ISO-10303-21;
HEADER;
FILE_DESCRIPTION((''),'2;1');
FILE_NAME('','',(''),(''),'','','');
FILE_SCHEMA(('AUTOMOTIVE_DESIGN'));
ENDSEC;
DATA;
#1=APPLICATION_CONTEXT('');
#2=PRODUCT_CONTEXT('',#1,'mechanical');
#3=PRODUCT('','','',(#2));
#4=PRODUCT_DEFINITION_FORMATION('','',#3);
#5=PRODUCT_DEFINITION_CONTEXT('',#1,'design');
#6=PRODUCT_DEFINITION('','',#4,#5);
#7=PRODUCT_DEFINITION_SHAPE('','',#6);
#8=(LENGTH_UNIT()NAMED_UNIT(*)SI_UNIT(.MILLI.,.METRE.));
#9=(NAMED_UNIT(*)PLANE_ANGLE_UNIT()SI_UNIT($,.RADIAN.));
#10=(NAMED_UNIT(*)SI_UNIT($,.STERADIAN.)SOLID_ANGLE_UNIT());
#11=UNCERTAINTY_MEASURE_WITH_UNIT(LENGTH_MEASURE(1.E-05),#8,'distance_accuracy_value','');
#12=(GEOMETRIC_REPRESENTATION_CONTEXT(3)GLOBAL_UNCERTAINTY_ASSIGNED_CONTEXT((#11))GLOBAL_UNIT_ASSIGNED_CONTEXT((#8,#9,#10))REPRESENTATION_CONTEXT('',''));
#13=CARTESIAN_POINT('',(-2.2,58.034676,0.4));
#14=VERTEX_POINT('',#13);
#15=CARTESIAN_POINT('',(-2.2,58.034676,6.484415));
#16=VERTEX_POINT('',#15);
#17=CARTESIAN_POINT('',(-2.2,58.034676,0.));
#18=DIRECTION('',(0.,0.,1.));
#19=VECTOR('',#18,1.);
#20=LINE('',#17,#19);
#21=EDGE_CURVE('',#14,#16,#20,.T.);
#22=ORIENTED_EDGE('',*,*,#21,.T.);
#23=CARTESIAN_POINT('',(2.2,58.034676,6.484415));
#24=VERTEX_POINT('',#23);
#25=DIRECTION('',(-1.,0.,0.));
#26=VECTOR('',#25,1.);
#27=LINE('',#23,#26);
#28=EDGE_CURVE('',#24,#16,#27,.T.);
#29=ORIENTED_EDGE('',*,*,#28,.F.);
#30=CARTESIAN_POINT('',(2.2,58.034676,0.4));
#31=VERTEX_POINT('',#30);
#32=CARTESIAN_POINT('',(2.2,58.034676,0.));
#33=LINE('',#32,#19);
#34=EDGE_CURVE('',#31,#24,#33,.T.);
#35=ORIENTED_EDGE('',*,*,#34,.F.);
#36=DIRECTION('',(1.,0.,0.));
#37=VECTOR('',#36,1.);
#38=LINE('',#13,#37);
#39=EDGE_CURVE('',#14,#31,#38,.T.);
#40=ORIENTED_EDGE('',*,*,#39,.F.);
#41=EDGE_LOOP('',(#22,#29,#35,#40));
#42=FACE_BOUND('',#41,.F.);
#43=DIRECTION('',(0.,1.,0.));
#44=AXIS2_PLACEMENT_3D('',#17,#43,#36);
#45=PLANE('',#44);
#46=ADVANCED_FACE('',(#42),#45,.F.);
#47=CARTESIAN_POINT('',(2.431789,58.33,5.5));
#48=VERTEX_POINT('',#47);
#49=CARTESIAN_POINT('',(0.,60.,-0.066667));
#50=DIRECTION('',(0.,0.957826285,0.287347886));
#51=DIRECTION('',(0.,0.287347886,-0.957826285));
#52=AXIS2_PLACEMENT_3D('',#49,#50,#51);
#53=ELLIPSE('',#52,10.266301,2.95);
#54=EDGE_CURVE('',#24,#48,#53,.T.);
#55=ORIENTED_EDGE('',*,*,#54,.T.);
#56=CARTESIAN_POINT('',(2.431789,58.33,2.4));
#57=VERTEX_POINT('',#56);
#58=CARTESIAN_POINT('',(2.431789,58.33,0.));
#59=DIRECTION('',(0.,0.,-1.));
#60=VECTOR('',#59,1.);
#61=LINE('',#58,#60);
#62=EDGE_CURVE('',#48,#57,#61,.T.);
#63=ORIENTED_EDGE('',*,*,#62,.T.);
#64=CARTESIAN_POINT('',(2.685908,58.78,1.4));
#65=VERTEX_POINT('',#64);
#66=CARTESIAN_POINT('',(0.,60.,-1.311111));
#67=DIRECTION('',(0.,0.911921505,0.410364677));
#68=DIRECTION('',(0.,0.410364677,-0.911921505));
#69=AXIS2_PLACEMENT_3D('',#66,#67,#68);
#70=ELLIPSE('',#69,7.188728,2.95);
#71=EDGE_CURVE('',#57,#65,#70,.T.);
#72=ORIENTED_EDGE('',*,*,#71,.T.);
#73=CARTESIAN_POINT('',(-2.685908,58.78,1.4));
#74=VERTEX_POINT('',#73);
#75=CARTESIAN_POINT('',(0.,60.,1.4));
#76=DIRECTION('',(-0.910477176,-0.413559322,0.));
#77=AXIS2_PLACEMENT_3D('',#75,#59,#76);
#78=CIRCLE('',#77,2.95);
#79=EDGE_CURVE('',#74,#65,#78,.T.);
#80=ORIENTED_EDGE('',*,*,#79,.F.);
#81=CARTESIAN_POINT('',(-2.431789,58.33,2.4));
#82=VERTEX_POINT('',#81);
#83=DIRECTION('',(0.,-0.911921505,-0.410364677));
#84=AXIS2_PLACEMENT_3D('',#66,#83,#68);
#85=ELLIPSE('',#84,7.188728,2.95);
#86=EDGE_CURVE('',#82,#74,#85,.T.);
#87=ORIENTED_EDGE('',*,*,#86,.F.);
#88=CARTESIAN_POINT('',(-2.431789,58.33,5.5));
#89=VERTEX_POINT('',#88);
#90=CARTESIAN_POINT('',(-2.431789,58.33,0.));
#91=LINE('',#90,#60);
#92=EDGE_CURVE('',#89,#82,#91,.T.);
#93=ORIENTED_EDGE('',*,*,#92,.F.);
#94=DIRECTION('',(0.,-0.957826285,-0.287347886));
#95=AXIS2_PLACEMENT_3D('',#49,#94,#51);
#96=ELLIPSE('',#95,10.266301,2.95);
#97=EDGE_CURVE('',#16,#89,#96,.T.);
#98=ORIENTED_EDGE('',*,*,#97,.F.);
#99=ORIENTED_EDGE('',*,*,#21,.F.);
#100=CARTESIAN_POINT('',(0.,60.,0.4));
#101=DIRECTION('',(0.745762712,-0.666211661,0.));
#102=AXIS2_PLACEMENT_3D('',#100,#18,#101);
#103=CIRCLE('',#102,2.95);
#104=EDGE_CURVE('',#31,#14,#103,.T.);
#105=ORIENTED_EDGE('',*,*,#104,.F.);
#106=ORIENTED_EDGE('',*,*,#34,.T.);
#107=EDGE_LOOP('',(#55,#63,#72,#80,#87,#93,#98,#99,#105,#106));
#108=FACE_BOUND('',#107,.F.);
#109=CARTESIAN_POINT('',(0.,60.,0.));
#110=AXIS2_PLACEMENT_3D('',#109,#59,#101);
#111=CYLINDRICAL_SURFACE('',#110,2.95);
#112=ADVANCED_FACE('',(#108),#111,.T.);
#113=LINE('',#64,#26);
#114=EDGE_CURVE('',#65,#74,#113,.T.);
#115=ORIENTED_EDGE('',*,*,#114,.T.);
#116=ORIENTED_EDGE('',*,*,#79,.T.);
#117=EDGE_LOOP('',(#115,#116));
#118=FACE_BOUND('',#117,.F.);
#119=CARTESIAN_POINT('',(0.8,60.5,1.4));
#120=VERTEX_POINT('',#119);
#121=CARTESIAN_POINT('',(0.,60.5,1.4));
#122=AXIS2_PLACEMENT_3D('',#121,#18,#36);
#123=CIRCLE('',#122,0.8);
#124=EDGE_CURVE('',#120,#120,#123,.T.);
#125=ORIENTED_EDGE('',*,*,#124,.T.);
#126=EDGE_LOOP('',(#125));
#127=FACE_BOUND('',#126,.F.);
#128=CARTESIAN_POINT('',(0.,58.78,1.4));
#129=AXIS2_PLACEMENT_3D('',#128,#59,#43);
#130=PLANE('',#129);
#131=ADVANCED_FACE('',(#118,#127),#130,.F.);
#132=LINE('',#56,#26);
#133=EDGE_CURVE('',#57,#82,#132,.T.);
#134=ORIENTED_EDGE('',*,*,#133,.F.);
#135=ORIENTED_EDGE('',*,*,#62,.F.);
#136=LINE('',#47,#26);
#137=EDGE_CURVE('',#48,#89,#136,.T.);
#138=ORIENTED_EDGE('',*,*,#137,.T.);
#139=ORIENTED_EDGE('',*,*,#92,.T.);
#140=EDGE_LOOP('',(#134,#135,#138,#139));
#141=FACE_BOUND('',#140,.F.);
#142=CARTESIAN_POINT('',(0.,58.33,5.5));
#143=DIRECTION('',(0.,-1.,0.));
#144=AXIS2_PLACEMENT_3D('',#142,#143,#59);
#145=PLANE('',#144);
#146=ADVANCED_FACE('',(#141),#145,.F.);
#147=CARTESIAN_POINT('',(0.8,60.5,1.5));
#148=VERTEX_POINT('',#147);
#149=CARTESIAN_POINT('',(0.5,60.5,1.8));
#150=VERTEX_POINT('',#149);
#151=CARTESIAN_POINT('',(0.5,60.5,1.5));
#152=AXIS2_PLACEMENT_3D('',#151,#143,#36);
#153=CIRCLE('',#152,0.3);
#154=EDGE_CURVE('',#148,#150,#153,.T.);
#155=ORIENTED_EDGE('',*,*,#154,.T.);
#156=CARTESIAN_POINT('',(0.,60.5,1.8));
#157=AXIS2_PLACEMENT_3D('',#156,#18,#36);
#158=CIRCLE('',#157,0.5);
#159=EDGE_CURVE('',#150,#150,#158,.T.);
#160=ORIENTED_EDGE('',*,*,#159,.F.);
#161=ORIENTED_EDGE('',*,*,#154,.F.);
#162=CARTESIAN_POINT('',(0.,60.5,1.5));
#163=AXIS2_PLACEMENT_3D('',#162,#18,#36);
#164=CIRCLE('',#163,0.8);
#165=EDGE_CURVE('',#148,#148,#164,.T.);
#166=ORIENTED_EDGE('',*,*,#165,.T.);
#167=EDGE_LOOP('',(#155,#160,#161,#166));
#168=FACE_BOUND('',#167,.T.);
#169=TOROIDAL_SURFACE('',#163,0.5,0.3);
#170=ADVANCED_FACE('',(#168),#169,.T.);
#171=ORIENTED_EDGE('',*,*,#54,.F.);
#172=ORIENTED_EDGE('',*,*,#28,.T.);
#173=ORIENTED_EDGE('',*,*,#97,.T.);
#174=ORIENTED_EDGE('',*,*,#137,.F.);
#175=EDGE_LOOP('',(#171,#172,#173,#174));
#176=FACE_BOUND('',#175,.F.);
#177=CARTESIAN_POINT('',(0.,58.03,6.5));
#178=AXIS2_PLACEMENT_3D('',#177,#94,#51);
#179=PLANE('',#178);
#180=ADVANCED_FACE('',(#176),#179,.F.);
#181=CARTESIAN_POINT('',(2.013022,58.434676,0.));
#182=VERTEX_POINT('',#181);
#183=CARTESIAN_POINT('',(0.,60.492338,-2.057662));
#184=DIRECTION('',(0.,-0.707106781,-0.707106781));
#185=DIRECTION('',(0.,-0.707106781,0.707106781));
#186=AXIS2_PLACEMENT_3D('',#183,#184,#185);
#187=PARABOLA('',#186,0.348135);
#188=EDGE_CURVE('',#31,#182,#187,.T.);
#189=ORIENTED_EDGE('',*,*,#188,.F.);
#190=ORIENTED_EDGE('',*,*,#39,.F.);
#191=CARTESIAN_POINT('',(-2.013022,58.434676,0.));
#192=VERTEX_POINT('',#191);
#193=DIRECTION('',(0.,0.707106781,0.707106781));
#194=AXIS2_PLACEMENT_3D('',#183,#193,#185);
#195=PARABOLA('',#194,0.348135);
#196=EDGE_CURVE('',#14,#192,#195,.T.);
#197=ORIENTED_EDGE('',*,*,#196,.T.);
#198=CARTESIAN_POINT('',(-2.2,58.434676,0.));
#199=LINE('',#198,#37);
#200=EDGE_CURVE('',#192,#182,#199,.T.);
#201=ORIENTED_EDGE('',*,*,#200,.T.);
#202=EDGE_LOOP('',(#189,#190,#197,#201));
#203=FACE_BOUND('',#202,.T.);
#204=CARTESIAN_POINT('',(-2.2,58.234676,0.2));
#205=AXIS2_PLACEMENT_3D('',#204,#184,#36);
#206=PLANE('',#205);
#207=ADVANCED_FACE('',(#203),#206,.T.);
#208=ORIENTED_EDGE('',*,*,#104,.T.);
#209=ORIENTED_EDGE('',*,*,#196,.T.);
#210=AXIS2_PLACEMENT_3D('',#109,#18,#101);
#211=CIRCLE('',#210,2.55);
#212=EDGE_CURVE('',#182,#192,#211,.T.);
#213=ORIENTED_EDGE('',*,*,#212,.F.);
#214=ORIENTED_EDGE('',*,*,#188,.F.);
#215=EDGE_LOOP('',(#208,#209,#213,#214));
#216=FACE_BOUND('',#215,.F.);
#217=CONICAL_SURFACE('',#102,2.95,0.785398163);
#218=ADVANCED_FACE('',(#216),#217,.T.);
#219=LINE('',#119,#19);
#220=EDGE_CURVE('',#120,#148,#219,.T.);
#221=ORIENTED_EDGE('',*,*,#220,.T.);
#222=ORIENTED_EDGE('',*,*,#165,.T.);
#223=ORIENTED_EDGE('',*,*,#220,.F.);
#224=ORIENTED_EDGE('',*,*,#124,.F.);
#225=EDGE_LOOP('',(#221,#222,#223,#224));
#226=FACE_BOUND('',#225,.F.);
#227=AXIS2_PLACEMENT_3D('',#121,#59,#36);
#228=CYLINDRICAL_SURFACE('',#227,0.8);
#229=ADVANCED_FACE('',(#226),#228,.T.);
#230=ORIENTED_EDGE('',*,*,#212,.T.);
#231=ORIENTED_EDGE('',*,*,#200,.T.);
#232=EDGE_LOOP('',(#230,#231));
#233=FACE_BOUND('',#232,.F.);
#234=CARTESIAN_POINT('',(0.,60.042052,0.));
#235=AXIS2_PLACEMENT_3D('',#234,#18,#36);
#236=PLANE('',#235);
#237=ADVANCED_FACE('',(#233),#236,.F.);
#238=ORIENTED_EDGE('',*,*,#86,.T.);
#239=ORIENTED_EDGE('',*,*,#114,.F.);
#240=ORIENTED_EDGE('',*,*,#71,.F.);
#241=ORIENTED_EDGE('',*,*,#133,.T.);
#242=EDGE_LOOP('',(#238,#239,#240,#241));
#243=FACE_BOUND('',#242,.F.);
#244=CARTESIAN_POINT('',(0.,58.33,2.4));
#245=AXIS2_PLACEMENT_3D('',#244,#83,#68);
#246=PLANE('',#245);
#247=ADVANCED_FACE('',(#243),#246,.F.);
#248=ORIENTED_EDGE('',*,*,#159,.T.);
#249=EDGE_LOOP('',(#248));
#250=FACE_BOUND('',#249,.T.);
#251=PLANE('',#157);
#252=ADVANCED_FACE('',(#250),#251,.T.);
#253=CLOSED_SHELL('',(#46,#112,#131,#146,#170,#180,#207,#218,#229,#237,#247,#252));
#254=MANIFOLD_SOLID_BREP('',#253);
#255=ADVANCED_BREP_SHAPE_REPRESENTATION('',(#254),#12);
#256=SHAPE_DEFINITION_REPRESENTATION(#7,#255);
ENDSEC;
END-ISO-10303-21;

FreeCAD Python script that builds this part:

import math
import FreeCAD as App
import Part
import Sketcher
from FreeCAD import Vector


def edges_at(feature, points):
    """Names of the edges that pass closest to the given points."""
    edges = feature.Shape.Edges
    near = lambda p: min(range(len(edges)), key=lambda i: edges[i].distToShape(Part.Vertex(*p))[0])
    return sorted({f"Edge{near(p) + 1}" for p in points})

doc = App.newDocument("Part")
body = doc.addObject("PartDesign::Body", "Body")

sketch1 = body.newObject("Sketcher::SketchObject", "Sketch")
sketch1.AttachmentSupport = (doc.getObject("XY_Plane"), [""])
sketch1.MapMode = "FlatFace"
sketch1.addGeometry(Part.ArcOfCircle(Part.Circle(Vector(0, 0, 0), Vector(0, 0, 1), 3), math.radians(-42), math.radians(222)), False)
sketch1.addGeometry(Part.LineSegment(Vector(-2.2, -2, 0), Vector(2.2, -2, 0)), False)
sketch1.addConstraint(Sketcher.Constraint("Coincident", 0, 1, 1, 2))
sketch1.addConstraint(Sketcher.Constraint("Coincident", 1, 1, 0, 2))
sketch1.addConstraint(Sketcher.Constraint("Horizontal", 1))
sketch1.addConstraint(Sketcher.Constraint("Coincident", 0, 3, -1, 1))
sketch1.addConstraint(Sketcher.Constraint("Radius", 0, 2.95))
sketch1.addConstraint(Sketcher.Constraint("DistanceX", 1, 1, 1, 2, 4.4))
pad1 = body.newObject("PartDesign::Pad", "Pad")
pad1.Profile = sketch1
pad1.Length = 6.5

sketch2 = body.newObject("Sketcher::SketchObject", "Sketch001")
sketch2.AttachmentSupport = (doc.getObject("YZ_Plane"), [""])
sketch2.MapMode = "FlatFace"
sketch2.addGeometry(Part.LineSegment(Vector(-2, 6.5, 0), Vector(-1.7, 5.5, 0)), False)
sketch2.addGeometry(Part.LineSegment(Vector(-1.7, 5.5, 0), Vector(-1.7, 2.4, 0)), False)
sketch2.addGeometry(Part.LineSegment(Vector(-1.7, 2.4, 0), Vector(-1.2, 1.4, 0)), False)
sketch2.addGeometry(Part.LineSegment(Vector(-1.2, 1.4, 0), Vector(4, 1.4, 0)), False)
sketch2.addGeometry(Part.LineSegment(Vector(4, 1.4, 0), Vector(4, 6.5, 0)), False)
sketch2.addGeometry(Part.LineSegment(Vector(4, 6.5, 0), Vector(-2, 6.5, 0)), False)
sketch2.addConstraint(Sketcher.Constraint("Coincident", 0, 2, 1, 1))
sketch2.addConstraint(Sketcher.Constraint("Coincident", 1, 2, 2, 1))
sketch2.addConstraint(Sketcher.Constraint("Coincident", 2, 2, 3, 1))
sketch2.addConstraint(Sketcher.Constraint("Coincident", 3, 2, 4, 1))
sketch2.addConstraint(Sketcher.Constraint("Coincident", 4, 2, 5, 1))
sketch2.addConstraint(Sketcher.Constraint("Coincident", 5, 2, 0, 1))
sketch2.addConstraint(Sketcher.Constraint("Vertical", 1))
sketch2.addConstraint(Sketcher.Constraint("Horizontal", 3))
sketch2.addConstraint(Sketcher.Constraint("Vertical", 4))
sketch2.addConstraint(Sketcher.Constraint("Horizontal", 5))
sketch2.addConstraint(Sketcher.Constraint("DistanceY", 1, 2, 1, 1, 3.1))
sketch2.addConstraint(Sketcher.Constraint("DistanceY", 4, 1, 4, 2, 5.1))
sketch2.addConstraint(Sketcher.Constraint("DistanceX", -1, 1, 3, 2, 4.0))
sketch2.addConstraint(Sketcher.Constraint("DistanceY", 2, 2, 1, 2, 1.0))
sketch2.addConstraint(Sketcher.Constraint("DistanceX", 3, 1, 3, 2, 5.22))
sketch2.addConstraint(Sketcher.Constraint("DistanceX", 5, 2, 5, 1, 5.97))
sketch2.addConstraint(Sketcher.Constraint("DistanceY", -1, 1, 0, 2, 5.5))
sketch2.addConstraint(Sketcher.Constraint("DistanceX", 5, 2, 0, 2, 0.3))
pocket1 = body.newObject("PartDesign::Pocket", "Pocket")
pocket1.Profile = sketch2
pocket1.Type = "ThroughAll"
pocket1.Midplane = True

sketch3 = body.newObject("Sketcher::SketchObject", "Sketch002")
sketch3.AttachmentSupport = (doc.getObject("XY_Plane"), [""])
sketch3.MapMode = "FlatFace"
sketch3.AttachmentOffset = App.Placement(Vector(0, 0, 1.4), App.Rotation())
sketch3.addGeometry(Part.Circle(Vector(0, 0.5, 0), Vector(0, 0, 1), 0.8), False)
sketch3.addConstraint(Sketcher.Constraint("PointOnObject", 0, 3, -2))
sketch3.addConstraint(Sketcher.Constraint("Diameter", 0, 1.6))
sketch3.addConstraint(Sketcher.Constraint("DistanceY", -1, 1, 0, 3, 0.5))
pad2 = body.newObject("PartDesign::Pad", "Pad001")
pad2.Profile = sketch3
pad2.Length = 0.4
doc.recompute()

fillet = body.newObject("PartDesign::Fillet", "Fillet")
fillet.Base = (pad2, edges_at(pad2, [(-0.8, 0.5, 1.8)]))
fillet.Radius = 0.3
doc.recompute()

chamfer = body.newObject("PartDesign::Chamfer", "Chamfer")
chamfer.Base = (fillet, edges_at(fillet, [(0, 2.95, 0), (0, -1.965, 0)]))
chamfer.Size = 0.4
body2 = doc.addObject("PartDesign::Body", "Body001")
doc.recompute()

body.Placement = App.Placement(Vector(0, 60, 0), App.Rotation(Vector(0, 0, 1), 0))
boolean = body2.newObject("PartDesign::Boolean", "Boolean")
boolean.Type = "Fuse"
boolean.addObjects([body])

doc.recompute()
